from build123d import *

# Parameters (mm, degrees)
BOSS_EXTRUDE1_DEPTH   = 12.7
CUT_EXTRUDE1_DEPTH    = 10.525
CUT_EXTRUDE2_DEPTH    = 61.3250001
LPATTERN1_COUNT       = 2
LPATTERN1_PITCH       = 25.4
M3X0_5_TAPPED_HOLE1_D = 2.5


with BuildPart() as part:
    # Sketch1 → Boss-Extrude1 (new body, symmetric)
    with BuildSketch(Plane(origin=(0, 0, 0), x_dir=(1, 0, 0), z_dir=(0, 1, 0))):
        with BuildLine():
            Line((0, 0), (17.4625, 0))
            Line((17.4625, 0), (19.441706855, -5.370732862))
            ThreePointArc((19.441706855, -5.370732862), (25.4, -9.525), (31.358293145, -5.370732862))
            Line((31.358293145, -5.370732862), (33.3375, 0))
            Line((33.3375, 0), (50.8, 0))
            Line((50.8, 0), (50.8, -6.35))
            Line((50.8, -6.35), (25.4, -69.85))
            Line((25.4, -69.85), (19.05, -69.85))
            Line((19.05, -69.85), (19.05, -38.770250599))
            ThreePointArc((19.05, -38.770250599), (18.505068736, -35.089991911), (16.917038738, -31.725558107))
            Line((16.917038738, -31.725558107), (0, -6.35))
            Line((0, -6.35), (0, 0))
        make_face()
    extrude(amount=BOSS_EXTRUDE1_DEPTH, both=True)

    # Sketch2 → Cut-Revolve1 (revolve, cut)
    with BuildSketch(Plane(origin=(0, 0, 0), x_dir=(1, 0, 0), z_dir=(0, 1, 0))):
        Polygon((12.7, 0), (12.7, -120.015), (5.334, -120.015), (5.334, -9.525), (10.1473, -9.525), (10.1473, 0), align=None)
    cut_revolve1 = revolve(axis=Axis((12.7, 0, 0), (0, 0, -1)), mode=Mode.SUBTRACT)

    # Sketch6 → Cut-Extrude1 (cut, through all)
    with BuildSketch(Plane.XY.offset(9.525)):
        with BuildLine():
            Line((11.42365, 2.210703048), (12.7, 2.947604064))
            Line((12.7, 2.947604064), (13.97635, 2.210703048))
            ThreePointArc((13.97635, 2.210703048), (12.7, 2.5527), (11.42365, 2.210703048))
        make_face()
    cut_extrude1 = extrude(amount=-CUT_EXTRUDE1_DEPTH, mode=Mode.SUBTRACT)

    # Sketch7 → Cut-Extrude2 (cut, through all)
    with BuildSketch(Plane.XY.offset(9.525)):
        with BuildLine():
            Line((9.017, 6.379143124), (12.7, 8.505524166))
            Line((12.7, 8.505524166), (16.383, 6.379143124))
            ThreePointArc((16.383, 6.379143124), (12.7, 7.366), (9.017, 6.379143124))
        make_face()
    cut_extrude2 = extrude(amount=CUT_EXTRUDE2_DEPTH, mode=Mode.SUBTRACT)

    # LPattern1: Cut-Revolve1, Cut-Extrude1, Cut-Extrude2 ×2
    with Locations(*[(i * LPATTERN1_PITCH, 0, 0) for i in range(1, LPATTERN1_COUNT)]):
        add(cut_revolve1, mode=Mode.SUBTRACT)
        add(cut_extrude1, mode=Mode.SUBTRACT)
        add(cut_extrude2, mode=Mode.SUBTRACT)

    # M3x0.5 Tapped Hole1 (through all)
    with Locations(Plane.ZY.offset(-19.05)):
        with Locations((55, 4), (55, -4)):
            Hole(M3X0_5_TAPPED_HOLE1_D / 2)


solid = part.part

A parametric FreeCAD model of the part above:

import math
import FreeCAD as App
import Part
import Sketcher

V = App.Vector
Q = App.Units.Quantity


def add_polygon(sketch, points):
    """Adds a closed chain of lines whose ends are joined by coincident constraints."""
    first, n = sketch.GeometryCount, len(points)
    for a, b in zip(points, points[1:] + points[:1]):
        sketch.addGeometry(Part.LineSegment(App.Vector(*a, 0), App.Vector(*b, 0)), False)
    for i in range(n):
        sketch.addConstraint(Sketcher.Constraint("Coincident", first + i, 2, first + (i + 1) % n, 1))

doc = App.newDocument("Part")
body = doc.addObject("PartDesign::Body", "Body")

sketch1 = body.newObject("Sketcher::SketchObject", "Sketch")
sketch1.AttachmentSupport = (doc.getObject("XZ_Plane"), [""])
sketch1.MapMode = "FlatFace"
sketch1.addGeometry([
    Part.LineSegment(V(17, 0, 0), V(0, 0, 0)),
    Part.LineSegment(V(0, 0, 0), V(0, 6, 0)),
    Part.LineSegment(V(0, 6, 0), V(17, 32, 0)),
    Part.ArcOfCircle(Part.Circle(V(6, 39, 0), V(0, 0, 1), 13), math.radians(-34), math.radians(0)),
    Part.LineSegment(V(19, 39, 0), V(19, 70, 0)),
    Part.LineSegment(V(19, 70, 0), V(25, 70, 0)),
    Part.LineSegment(V(25, 70, 0), V(51, 6, 0)),
    Part.LineSegment(V(51, 6, 0), V(51, 0, 0)),
    Part.LineSegment(V(51, 0, 0), V(33, 0, 0)),
    Part.LineSegment(V(33, 0, 0), V(31, 5, 0)),
    Part.ArcOfCircle(Part.Circle(V(25, 3, 0), V(0, 0, 1), 6), math.radians(20), math.radians(160)),
    Part.LineSegment(V(19, 5, 0), V(17, 0, 0)),
], False)
sketch1.addConstraint([
    Sketcher.Constraint("Coincident", 0, 2, 1, 1),
    Sketcher.Constraint("Coincident", 1, 2, 2, 1),
    Sketcher.Constraint("Tangent", 2, 2, 3, 1),
    Sketcher.Constraint("Tangent", 3, 2, 4, 1),
    Sketcher.Constraint("Coincident", 4, 2, 5, 1),
    Sketcher.Constraint("Coincident", 5, 2, 6, 1),
    Sketcher.Constraint("Coincident", 6, 2, 7, 1),
    Sketcher.Constraint("Coincident", 7, 2, 8, 1),
    Sketcher.Constraint("Coincident", 8, 2, 9, 1),
    Sketcher.Constraint("Tangent", 9, 2, 10, 1),
    Sketcher.Constraint("Tangent", 10, 2, 11, 1),
    Sketcher.Constraint("Coincident", 11, 2, 0, 1),
    Sketcher.Constraint("Horizontal", 0),
    Sketcher.Constraint("Vertical", 1),
    Sketcher.Constraint("Vertical", 4),
    Sketcher.Constraint("Horizontal", 5),
    Sketcher.Constraint("Vertical", 7),
    Sketcher.Constraint("Horizontal", 8),
    Sketcher.Constraint("Coincident", 0, 2, -1, 1),
    Sketcher.Constraint("PointOnObject", 7, 2, -1),
    Sketcher.Constraint("Horizontal", 1, 2, 6, 2),
    Sketcher.Constraint("Horizontal", 9, 2, 10, 2),
    Sketcher.Constraint("Vertical", 10, 3, 5, 2),
    Sketcher.Constraint("Equal", 0, 8),
    Sketcher.Constraint("Equal", 5, 1),
    Sketcher.Constraint("Radius", 3, Q("0.5 in")),
    Sketcher.Constraint("Radius", 10, Q("0.25 in")),
    Sketcher.Constraint("DistanceX", -1, 1, 10, 3, Q("1 in")),
    Sketcher.Constraint("DistanceX", 5, 1, 5, 2, Q("0.25 in")),
    Sketcher.Constraint("DistanceY", 1, 2, 4, 2, Q("2.5 in")),
    Sketcher.Constraint("DistanceX", 0, 2, 0, 1, Q("0.6875 in")),
    Sketcher.Constraint("DistanceY", -1, 1, 10, 3, Q("0.125 in")),
    Sketcher.Constraint("DistanceY", 4, 1, 4, 2, Q("31.079749 mm")),
])
pad1 = body.newObject("PartDesign::Pad", "Pad")
pad1.Profile = sketch1
pad1.Length = Q("1 in")
pad1.Midplane = True

sketch2 = body.newObject("Sketcher::SketchObject", "Sketch001")
sketch2.AttachmentSupport = (doc.getObject("XZ_Plane"), [""])
sketch2.MapMode = "FlatFace"
add_polygon(sketch2, [(12.7, 120), (12.7, 0), (10.1, 0), (10.1, 9.5), (5.3, 9.5), (5.3, 120)])
sketch2.addGeometry(Part.LineSegment(V(12.7, 120, 0), V(12.7, 0, 0)), True)
sketch2.addConstraint([
    Sketcher.Constraint("Vertical", 0),
    Sketcher.Constraint("Horizontal", 1),
    Sketcher.Constraint("Vertical", 2),
    Sketcher.Constraint("Horizontal", 3),
    Sketcher.Constraint("Vertical", 4),
    Sketcher.Constraint("Horizontal", 5),
    Sketcher.Constraint("Vertical", 6),
    Sketcher.Constraint("Coincident", 6, 1, 5, 2),
    Sketcher.Constraint("PointOnObject", 0, 2, -1),
    Sketcher.Constraint("PointOnObject", 6, 2, -1),
    Sketcher.Constraint("DistanceX", 5, 1, 5, 2, Q("0.29 in")),
    Sketcher.Constraint("DistanceY", 4, 1, 4, 2, Q("4.35 in")),
    Sketcher.Constraint("DistanceX", -1, 1, 0, 2, Q("0.5 in")),
    Sketcher.Constraint("DistanceY", 0, 2, 0, 1, Q("4.725 in")),
    Sketcher.Constraint("DistanceX", 1, 2, 1, 1, Q("0.1005 in")),
])
groove = body.newObject("PartDesign::Groove", "Groove")
groove.Profile = sketch2
groove.ReferenceAxis = (sketch2, ["Axis0"])
groove.Angle = 360

sketch3 = body.newObject("Sketcher::SketchObject", "Sketch002")
sketch3.AttachmentSupport = (doc.getObject("XY_Plane"), [""])
sketch3.MapMode = "FlatFace"
sketch3.AttachmentOffset = App.Placement(V(0, 0, 0.375 * 25.4), App.Rotation())
sketch3.addGeometry([
    Part.LineSegment(V(12.7, 2.9, 0), V(11.4, 2.2, 0)),
    Part.ArcOfCircle(Part.Circle(V(12.7, 0, 0), V(0, 0, 1), 2.6), math.radians(60), math.radians(120)),
    Part.LineSegment(V(14, 2.2, 0), V(12.7, 2.9, 0)),
], False)
sketch3.addConstraint([
    Sketcher.Constraint("Tangent", 0, 2, 1, 2),
    Sketcher.Constraint("Tangent", 1, 1, 2, 1),
    Sketcher.Constraint("Coincident", 2, 2, 0, 1),
    Sketcher.Constraint("PointOnObject", 1, 3, -1),
    Sketcher.Constraint("Horizontal", 0, 2, 1, 1),
    Sketcher.Constraint("Angle", 0, Q("-150 deg")),
    Sketcher.Constraint("DistanceX", -1, 1, 1, 3, Q("0.5 in")),
    Sketcher.Constraint("Radius", 1, Q("0.1005 in")),
])
pocket1 = body.newObject("PartDesign::Pocket", "Pocket")
pocket1.Profile = sketch3
pocket1.Type = "ThroughAll"

sketch4 = body.newObject("Sketcher::SketchObject", "Sketch003")
sketch4.AttachmentSupport = (doc.getObject("XY_Plane"), [""])
sketch4.MapMode = "FlatFace"
sketch4.AttachmentOffset = App.Placement(V(0, 0, 0.375 * 25.4), App.Rotation())
sketch4.addGeometry([
    Part.LineSegment(V(12.7, 8.5, 0), V(9, 6.4, 0)),
    Part.ArcOfCircle(Part.Circle(V(12.7, 0, 0), V(0, 0, 1), 7.4), math.radians(60), math.radians(120)),
    Part.LineSegment(V(16.4, 6.4, 0), V(12.7, 8.5, 0)),
], False)
sketch4.addConstraint([
    Sketcher.Constraint("Tangent", 0, 2, 1, 2),
    Sketcher.Constraint("Tangent", 1, 1, 2, 1),
    Sketcher.Constraint("Coincident", 2, 2, 0, 1),
    Sketcher.Constraint("PointOnObject", 1, 3, -1),
    Sketcher.Constraint("Horizontal", 0, 2, 1, 1),
    Sketcher.Constraint("Radius", 1, Q("0.29 in")),
    Sketcher.Constraint("Angle", 0, Q("-150 deg")),
    Sketcher.Constraint("DistanceX", -1, 1, 1, 3, Q("0.5 in")),
])
pocket2 = body.newObject("PartDesign::Pocket", "Pocket001")
pocket2.Profile = sketch4
pocket2.Type = "ThroughAll"
pocket2.Reversed = True
doc.recompute()

linearpattern = body.newObject("PartDesign::LinearPattern", "LinearPattern")
linearpattern.Originals = [groove, pocket1, pocket2]
linearpattern.Direction = (doc.getObject("X_Axis"), [""])
linearpattern.Mode = "offset"
linearpattern.Offset = Q("1 in")
linearpattern.Occurrences = 2
body.Tip = linearpattern

sketch5 = body.newObject("Sketcher::SketchObject", "Sketch004")
sketch5.AttachmentSupport = (doc.getObject("YZ_Plane"), [""])
sketch5.MapMode = "FlatFace"
sketch5.AttachmentOffset = App.Placement(V(0, 0, 0.75 * 25.4), App.Rotation())
sketch5.addGeometry([
    Part.Circle(V(4, 55, 0), V(0, 0, 1), 1.2),
    Part.Circle(V(-4, 55, 0), V(0, 0, 1), 1.2),
], False)
sketch5.addConstraint([
    Sketcher.Constraint("Equal", 0, 1),
    Sketcher.Constraint("Symmetric", 0, 3, 1, 3, -2),
    Sketcher.Constraint("Diameter", 0, Q("2.5 mm")),
    Sketcher.Constraint("DistanceX", -1, 1, 0, 3, Q("4 mm")),
    Sketcher.Constraint("DistanceY", -1, 1, 0, 3, Q("55 mm")),
])
doc.recompute()
hole = body.newObject("PartDesign::Hole", "Hole")
hole.Profile = sketch5
hole.ThreadType = "None"
hole.Diameter = 2.5
hole.DepthType = "ThroughAll"
hole.Reversed = True

doc.recompute()
